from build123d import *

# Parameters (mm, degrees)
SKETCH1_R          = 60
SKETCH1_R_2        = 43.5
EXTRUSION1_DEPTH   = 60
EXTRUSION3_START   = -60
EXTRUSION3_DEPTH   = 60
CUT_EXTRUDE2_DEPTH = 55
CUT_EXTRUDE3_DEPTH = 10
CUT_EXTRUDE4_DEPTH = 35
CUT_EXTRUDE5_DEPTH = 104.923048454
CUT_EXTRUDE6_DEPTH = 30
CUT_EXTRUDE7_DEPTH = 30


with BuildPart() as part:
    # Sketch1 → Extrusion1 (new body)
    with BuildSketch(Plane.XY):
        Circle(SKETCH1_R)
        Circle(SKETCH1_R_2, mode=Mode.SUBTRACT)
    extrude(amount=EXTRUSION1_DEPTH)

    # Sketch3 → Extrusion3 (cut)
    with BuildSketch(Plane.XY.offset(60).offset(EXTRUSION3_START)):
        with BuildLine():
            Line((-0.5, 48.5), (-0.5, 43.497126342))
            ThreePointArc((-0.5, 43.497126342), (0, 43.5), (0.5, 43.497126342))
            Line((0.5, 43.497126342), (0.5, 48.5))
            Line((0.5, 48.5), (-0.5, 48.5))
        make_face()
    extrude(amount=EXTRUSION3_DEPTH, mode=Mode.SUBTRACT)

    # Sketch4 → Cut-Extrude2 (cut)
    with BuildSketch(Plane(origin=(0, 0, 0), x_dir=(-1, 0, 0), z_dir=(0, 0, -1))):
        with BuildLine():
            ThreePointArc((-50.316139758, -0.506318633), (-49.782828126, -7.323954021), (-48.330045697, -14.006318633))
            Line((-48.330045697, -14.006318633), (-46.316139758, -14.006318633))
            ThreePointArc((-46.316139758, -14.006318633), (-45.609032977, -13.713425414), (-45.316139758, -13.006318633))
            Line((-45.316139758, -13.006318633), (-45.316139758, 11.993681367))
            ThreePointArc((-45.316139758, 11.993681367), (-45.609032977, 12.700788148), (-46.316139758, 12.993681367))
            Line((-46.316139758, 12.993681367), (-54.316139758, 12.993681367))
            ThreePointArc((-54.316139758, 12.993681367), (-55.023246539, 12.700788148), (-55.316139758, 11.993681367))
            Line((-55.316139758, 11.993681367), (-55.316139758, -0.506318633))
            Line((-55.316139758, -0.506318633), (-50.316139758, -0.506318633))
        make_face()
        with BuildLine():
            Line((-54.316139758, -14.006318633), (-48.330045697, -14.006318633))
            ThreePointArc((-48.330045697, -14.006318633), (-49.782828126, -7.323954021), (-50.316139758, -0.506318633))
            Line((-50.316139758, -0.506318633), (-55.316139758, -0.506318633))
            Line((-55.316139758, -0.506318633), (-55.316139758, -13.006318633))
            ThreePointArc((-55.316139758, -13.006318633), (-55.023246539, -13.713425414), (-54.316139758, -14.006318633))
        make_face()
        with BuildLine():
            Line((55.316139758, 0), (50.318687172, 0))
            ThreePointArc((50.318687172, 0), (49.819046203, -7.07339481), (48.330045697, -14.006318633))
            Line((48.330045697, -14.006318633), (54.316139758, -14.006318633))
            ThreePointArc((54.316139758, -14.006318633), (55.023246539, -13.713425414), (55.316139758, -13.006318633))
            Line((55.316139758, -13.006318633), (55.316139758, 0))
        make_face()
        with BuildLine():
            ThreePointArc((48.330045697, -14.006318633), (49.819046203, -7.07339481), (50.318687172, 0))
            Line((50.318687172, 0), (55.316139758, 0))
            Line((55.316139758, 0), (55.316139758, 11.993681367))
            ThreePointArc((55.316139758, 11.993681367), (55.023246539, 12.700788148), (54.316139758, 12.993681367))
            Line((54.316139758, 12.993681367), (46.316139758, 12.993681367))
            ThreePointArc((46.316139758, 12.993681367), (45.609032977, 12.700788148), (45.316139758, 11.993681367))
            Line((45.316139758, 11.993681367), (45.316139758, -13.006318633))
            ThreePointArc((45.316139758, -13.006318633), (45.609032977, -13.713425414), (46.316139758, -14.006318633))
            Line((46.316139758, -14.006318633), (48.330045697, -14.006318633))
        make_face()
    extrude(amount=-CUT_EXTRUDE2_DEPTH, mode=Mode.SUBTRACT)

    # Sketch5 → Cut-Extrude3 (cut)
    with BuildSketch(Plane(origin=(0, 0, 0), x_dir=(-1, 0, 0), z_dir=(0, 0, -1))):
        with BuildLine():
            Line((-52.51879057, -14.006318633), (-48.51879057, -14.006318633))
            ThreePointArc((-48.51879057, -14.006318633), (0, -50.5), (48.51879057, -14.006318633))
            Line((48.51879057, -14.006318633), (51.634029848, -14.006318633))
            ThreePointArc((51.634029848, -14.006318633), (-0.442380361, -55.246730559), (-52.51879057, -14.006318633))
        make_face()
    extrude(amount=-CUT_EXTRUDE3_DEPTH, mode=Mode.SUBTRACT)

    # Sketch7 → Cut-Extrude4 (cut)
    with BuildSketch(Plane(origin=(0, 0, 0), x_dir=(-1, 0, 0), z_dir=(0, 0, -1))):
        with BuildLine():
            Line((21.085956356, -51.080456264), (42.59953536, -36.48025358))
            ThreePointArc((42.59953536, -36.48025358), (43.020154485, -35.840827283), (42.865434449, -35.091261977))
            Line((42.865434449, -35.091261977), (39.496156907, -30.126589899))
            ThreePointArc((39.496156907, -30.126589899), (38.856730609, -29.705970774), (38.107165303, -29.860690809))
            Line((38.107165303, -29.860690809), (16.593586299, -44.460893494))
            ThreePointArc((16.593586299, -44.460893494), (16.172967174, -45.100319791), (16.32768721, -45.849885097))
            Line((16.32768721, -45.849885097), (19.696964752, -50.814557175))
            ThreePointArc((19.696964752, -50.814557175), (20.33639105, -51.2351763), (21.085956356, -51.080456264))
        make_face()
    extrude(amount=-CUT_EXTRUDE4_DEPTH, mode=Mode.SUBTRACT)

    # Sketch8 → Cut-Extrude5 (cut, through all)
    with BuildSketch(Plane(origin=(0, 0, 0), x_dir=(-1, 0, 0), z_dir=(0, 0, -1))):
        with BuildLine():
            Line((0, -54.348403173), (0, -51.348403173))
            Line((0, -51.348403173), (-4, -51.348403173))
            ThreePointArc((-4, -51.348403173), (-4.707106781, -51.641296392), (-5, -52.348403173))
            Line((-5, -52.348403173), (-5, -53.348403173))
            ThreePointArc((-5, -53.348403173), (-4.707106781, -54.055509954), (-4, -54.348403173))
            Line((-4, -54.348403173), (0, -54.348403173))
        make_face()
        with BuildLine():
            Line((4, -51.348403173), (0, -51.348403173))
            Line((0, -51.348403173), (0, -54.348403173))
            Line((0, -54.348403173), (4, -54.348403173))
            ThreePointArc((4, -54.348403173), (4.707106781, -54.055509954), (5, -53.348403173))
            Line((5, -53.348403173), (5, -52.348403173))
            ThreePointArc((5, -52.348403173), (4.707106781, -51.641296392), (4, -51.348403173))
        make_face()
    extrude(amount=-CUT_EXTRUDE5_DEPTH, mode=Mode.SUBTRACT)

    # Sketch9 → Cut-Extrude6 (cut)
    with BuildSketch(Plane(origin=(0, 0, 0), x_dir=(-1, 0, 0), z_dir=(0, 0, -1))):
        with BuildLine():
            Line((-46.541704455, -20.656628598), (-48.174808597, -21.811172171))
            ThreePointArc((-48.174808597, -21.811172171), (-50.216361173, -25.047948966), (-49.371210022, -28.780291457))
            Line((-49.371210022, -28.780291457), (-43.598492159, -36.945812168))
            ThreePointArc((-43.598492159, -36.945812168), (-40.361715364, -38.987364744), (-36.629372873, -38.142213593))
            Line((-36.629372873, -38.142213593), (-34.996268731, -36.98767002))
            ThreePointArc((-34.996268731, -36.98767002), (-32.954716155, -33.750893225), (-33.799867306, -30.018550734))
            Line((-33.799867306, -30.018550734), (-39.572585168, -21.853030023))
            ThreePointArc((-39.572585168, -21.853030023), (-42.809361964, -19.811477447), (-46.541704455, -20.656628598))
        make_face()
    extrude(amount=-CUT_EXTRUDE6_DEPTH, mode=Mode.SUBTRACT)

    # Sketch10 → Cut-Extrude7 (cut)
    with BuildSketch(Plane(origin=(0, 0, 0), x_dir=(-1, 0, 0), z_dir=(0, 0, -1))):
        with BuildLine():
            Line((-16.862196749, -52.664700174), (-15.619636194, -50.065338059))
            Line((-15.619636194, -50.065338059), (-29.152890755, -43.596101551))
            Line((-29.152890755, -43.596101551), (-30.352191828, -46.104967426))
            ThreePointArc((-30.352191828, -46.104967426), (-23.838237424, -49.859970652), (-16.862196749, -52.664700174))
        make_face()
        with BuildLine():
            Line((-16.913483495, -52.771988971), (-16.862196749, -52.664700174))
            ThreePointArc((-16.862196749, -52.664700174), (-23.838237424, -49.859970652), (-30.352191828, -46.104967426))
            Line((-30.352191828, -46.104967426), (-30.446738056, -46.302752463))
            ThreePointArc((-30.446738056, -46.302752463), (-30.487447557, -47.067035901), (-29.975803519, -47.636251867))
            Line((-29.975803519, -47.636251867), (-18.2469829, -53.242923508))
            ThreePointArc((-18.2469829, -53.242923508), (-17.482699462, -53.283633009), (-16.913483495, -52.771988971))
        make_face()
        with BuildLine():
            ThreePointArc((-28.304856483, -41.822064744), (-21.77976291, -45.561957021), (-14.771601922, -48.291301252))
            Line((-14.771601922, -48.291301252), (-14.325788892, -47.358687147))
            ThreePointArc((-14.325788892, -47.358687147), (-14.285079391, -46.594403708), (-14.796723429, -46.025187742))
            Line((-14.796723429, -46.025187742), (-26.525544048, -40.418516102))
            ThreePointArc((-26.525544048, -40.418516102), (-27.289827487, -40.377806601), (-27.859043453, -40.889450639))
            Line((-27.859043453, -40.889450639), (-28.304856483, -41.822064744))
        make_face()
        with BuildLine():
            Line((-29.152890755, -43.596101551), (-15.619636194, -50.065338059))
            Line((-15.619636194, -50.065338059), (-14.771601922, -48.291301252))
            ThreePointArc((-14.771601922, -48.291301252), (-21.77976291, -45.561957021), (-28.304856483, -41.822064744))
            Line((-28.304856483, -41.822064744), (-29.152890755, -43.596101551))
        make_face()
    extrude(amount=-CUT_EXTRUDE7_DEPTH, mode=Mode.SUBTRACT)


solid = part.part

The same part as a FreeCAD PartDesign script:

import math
import FreeCAD as App
import Part
import Sketcher

V = App.Vector
Q = App.Units.Quantity

doc = App.newDocument("Part")
body = doc.addObject("PartDesign::Body", "Body")

# Sketch on XY plane
sketch1 = body.newObject("Sketcher::SketchObject", "Sketch")
sketch1.AttachmentSupport = (doc.getObject("XY_Plane"), [""])
sketch1.MapMode = "FlatFace"
sketch1.addGeometry([
    Part.Circle(V(0, 0, 0), V(0, 0, 1), 60),
    Part.Circle(V(0, 0, 0), V(0, 0, 1), 43.5),
], False)
sketch1.addConstraint([
    Sketcher.Constraint("Coincident", 0, 3, -1, 1),
    Sketcher.Constraint("Coincident", 1, 3, -1, 1),
    Sketcher.Constraint("Diameter", 0, Q("120 mm")),
    Sketcher.Constraint("Diameter", 1, Q("87 mm")),
])
pad1 = body.newObject("PartDesign::Pad", "Pad")
pad1.Profile = sketch1
pad1.Length = 60

# Sketch on XY plane
sketch2 = body.newObject("Sketcher::SketchObject", "Sketch001")
sketch2.AttachmentSupport = (doc.getObject("XY_Plane"), [""])
sketch2.MapMode = "FlatFace"
sketch2.addGeometry([
    Part.LineSegment(V(-0.5, 48.5, 0), V(-0.5, 43.497126, 0)),
    Part.ArcOfCircle(Part.Circle(V(0, -0.000002, 0), V(0, 0, 1), 43.500002), math.radians(89.341413), math.radians(90.658587)),
    Part.LineSegment(V(0.5, 43.497126, 0), V(0.5, 48.5, 0)),
    Part.LineSegment(V(0.5, 48.5, 0), V(-0.5, 48.5, 0)),
], False)
sketch2.addConstraint([
    Sketcher.Constraint("Coincident", 0, 2, 1, 2),
    Sketcher.Constraint("Coincident", 1, 1, 2, 1),
    Sketcher.Constraint("Coincident", 2, 2, 3, 1),
    Sketcher.Constraint("Coincident", 3, 2, 0, 1),
    Sketcher.Constraint("Vertical", 0),
    Sketcher.Constraint("Vertical", 2),
    Sketcher.Constraint("Horizontal", 3),
    Sketcher.Constraint("Coincident", 1, 3, -1, 1),
    Sketcher.Constraint("Horizontal", 0, 2, 1, 1),
    Sketcher.Constraint("DistanceX", 3, 2, 3, 1, Q("1 mm")),
    Sketcher.Constraint("DistanceY", -1, 1, 2, 2, Q("48.5 mm")),
    Sketcher.Constraint("Radius", 1, Q("43.500002 mm")),
])
pocket1 = body.newObject("PartDesign::Pocket", "Pocket")
pocket1.Profile = sketch2
pocket1.Length = 60
pocket1.Reversed = True

# Sketch on XY plane
sketch3 = body.newObject("Sketcher::SketchObject", "Sketch002")
sketch3.AttachmentSupport = (doc.getObject("XY_Plane"), [""])
sketch3.MapMode = "FlatFace"
sketch3.addGeometry([
    Part.ArcOfCircle(Part.Circle(V(46.31614, -13.006319, 0), V(0, 0, 1), 1), math.radians(-180), math.radians(-90)),  # 0
    Part.LineSegment(V(45.31614, -13.006319, 0), V(45.31614, 11.993681, 0)),  # 1
    Part.ArcOfCircle(Part.Circle(V(46.31614, 11.993681, 0), V(0, 0, 1), 1), math.radians(90), math.radians(180)),  # 2
    Part.LineSegment(V(46.31614, 12.993681, 0), V(54.31614, 12.993681, 0)),  # 3
    Part.ArcOfCircle(Part.Circle(V(54.31614, 11.993681, 0), V(0, 0, 1), 1), math.radians(0), math.radians(90)),  # 4
    Part.LineSegment(V(55.31614, 11.993681, 0), V(55.31614, -13.006319, 0)),  # 5
    Part.ArcOfCircle(Part.Circle(V(54.31614, -13.006319, 0), V(0, 0, 1), 1), math.radians(-90), math.radians(0)),  # 6
    Part.LineSegment(V(54.31614, -14.006319, 0), V(46.31614, -14.006319, 0)),  # 7
    Part.ArcOfCircle(Part.Circle(V(-54.31614, -13.006319, 0), V(0, 0, 1), 1), math.radians(-180), math.radians(-90)),  # 8
    Part.LineSegment(V(-55.31614, -13.006319, 0), V(-55.31614, 11.993681, 0)),  # 9
    Part.ArcOfCircle(Part.Circle(V(-54.31614, 11.993681, 0), V(0, 0, 1), 1), math.radians(90), math.radians(180)),  # 10
    Part.LineSegment(V(-54.31614, 12.993681, 0), V(-46.31614, 12.993681, 0)),  # 11
    Part.ArcOfCircle(Part.Circle(V(-46.31614, 11.993681, 0), V(0, 0, 1), 1), math.radians(0), math.radians(90)),  # 12
    Part.LineSegment(V(-45.31614, 11.993681, 0), V(-45.31614, -13.006319, 0)),  # 13
    Part.ArcOfCircle(Part.Circle(V(-46.31614, -13.006319, 0), V(0, 0, 1), 1), math.radians(-90), math.radians(0)),  # 14
    Part.LineSegment(V(-46.31614, -14.006319, 0), V(-54.31614, -14.006319, 0)),  # 15
], False)
sketch3.addConstraint([
    Sketcher.Constraint("Tangent", 0, 1, 1, 1),
    Sketcher.Constraint("Tangent", 1, 2, 2, 2),
    Sketcher.Constraint("Tangent", 2, 1, 3, 1),
    Sketcher.Constraint("Tangent", 3, 2, 4, 2),
    Sketcher.Constraint("Tangent", 4, 1, 5, 1),
    Sketcher.Constraint("Tangent", 5, 2, 6, 2),
    Sketcher.Constraint("Tangent", 6, 1, 7, 1),
    Sketcher.Constraint("Tangent", 7, 2, 0, 2),
    Sketcher.Constraint("Tangent", 8, 1, 9, 1),
    Sketcher.Constraint("Tangent", 9, 2, 10, 2),
    Sketcher.Constraint("Tangent", 10, 1, 11, 1),
    Sketcher.Constraint("Tangent", 11, 2, 12, 2),
    Sketcher.Constraint("Tangent", 12, 1, 13, 1),
    Sketcher.Constraint("Tangent", 13, 2, 14, 2),
    Sketcher.Constraint("Tangent", 14, 1, 15, 1),
    Sketcher.Constraint("Tangent", 15, 2, 8, 2),
    Sketcher.Constraint("Vertical", 1),
    Sketcher.Constraint("Horizontal", 3),
    Sketcher.Constraint("Vertical", 5),
    Sketcher.Constraint("Horizontal", 7),
    Sketcher.Constraint("Vertical", 9),
    Sketcher.Constraint("Horizontal", 11),
    Sketcher.Constraint("Vertical", 13),
    Sketcher.Constraint("Horizontal", 15),
    Sketcher.Constraint("Equal", 0, 2),
    Sketcher.Constraint("Equal", 2, 4),
    Sketcher.Constraint("Equal", 4, 6),
    Sketcher.Constraint("Equal", 6, 8),
    Sketcher.Constraint("Equal", 8, 10),
    Sketcher.Constraint("Equal", 10, 12),
    Sketcher.Constraint("Equal", 12, 14),
    Sketcher.Constraint("Symmetric", 6, 3, 8, 3, -2),
    Sketcher.Constraint("Symmetric", 2, 3, 12, 3, -2),
    Sketcher.Constraint("Radius", 0, Q("1 mm")),
    Sketcher.Constraint("DistanceX", 3, 1, 3, 2, Q("8 mm")),
    Sketcher.Constraint("DistanceY", 1, 1, 1, 2, Q("25 mm")),
    Sketcher.Constraint("DistanceX", -1, 1, 0, 3, Q("46.31614 mm")),
    Sketcher.Constraint("DistanceY", 0, 3, -1, 1, Q("13.006319 mm")),
])
pocket2 = body.newObject("PartDesign::Pocket", "Pocket001")
pocket2.Profile = sketch3
pocket2.Length = 55
pocket2.Reversed = True

# Sketch on XY plane
sketch4 = body.newObject("Sketcher::SketchObject", "Sketch003")
sketch4.AttachmentSupport = (doc.getObject("XY_Plane"), [""])
sketch4.MapMode = "FlatFace"
sketch4.addGeometry([
    Part.LineSegment(V(48.518791, -14.006319, 0), V(52.518791, -14.006319, 0)),
    Part.ArcOfCircle(Part.Circle(V(0.44238, -1.746731, 0), V(0, 0, 1), 53.5), math.radians(-166.752897), math.radians(-13.247103)),
    Part.LineSegment(V(-51.63403, -14.006319, 0), V(-48.518791, -14.006319, 0)),
    Part.ArcOfCircle(Part.Circle(V(0, 0, 0), V(0, 0, 1), 50.5), math.radians(-163.897722), math.radians(-16.102278)),
], False)
sketch4.addConstraint([
    Sketcher.Constraint("Coincident", 0, 2, 1, 2),
    Sketcher.Constraint("Coincident", 1, 1, 2, 1),
    Sketcher.Constraint("Coincident", 2, 2, 3, 1),
    Sketcher.Constraint("Coincident", 3, 2, 0, 1),
    Sketcher.Constraint("Horizontal", 0),
    Sketcher.Constraint("Horizontal", 2),
    Sketcher.Constraint("Coincident", 3, 3, -1, 1),
    Sketcher.Constraint("Horizontal", 0, 2, 1, 1),
    Sketcher.Constraint("Radius", 1, Q("53.5 mm")),
    Sketcher.Constraint("Radius", 3, Q("50.5 mm")),
    Sketcher.Constraint("DistanceX", 0, 1, 0, 2, Q("4 mm")),
    Sketcher.Constraint("DistanceX", 2, 1, 2, 2, Q("3.115239 mm")),
    Sketcher.Constraint("DistanceY", 1, 3, -1, 1, Q("1.746731 mm")),
])
pocket3 = body.newObject("PartDesign::Pocket", "Pocket002")
pocket3.Profile = sketch4
pocket3.Length = 10
pocket3.Reversed = True

# Sketch on XY plane
sketch5 = body.newObject("Sketcher::SketchObject", "Sketch004")
sketch5.AttachmentSupport = (doc.getObject("XY_Plane"), [""])
sketch5.MapMode = "FlatFace"
sketch5.addGeometry([
    Part.LineSegment(V(-21.085956, -51.080456, 0), V(-42.599535, -36.480254, 0)),  # 0
    Part.ArcOfCircle(Part.Circle(V(-42.037989, -35.652808, 0), V(0, 0, 1), 1), math.radians(145.837201), math.radians(235.837201)),  # 1
    Part.LineSegment(V(-42.865434, -35.091262, 0), V(-39.496157, -30.12659, 0)),  # 2
    Part.ArcOfCircle(Part.Circle(V(-38.668712, -30.688136, 0), V(0, 0, 1), 1), math.radians(55.837201), math.radians(145.837201)),  # 3
    Part.LineSegment(V(-38.107165, -29.860691, 0), V(-16.593586, -44.460893, 0)),  # 4
    Part.ArcOfCircle(Part.Circle(V(-17.155133, -45.288339, 0), V(0, 0, 1), 1), math.radians(-34.162799), math.radians(55.837201)),  # 5
    Part.LineSegment(V(-16.327687, -45.849885, 0), V(-19.696965, -50.814557, 0)),  # 6
    Part.ArcOfCircle(Part.Circle(V(-20.52441, -50.253011, 0), V(0, 0, 1), 1), math.radians(-124.162799), math.radians(-34.162799)),  # 7
], False)
sketch5.addConstraint([
    Sketcher.Constraint("Tangent", 0, 2, 1, 2),
    Sketcher.Constraint("Tangent", 1, 1, 2, 1),
    Sketcher.Constraint("Tangent", 2, 2, 3, 2),
    Sketcher.Constraint("Tangent", 3, 1, 4, 1),
    Sketcher.Constraint("Tangent", 4, 2, 5, 2),
    Sketcher.Constraint("Tangent", 5, 1, 6, 1),
    Sketcher.Constraint("Tangent", 6, 2, 7, 2),
    Sketcher.Constraint("Tangent", 7, 1, 0, 1),
    Sketcher.Constraint("Equal", 1, 3),
    Sketcher.Constraint("Equal", 3, 5),
    Sketcher.Constraint("Equal", 5, 7),
    Sketcher.Constraint("Perpendicular", 0, 2),
    Sketcher.Constraint("Perpendicular", 2, 4),
    Sketcher.Constraint("Perpendicular", 4, 6),
    Sketcher.Constraint("Radius", 1, Q("1 mm")),
    Sketcher.Constraint("Distance", 0, Q("26 mm")),
    Sketcher.Constraint("Distance", 2, Q("6 mm")),
    Sketcher.Constraint("DistanceX", 3, 3, 7, 3, Q("18.144301 mm")),
    Sketcher.Constraint("DistanceX", 1, 3, -1, 1, Q("42.037989 mm")),
    Sketcher.Constraint("DistanceY", 1, 3, -1, 1, Q("35.652808 mm")),
])
pocket4 = body.newObject("PartDesign::Pocket", "Pocket003")
pocket4.Profile = sketch5
pocket4.Length = 35
pocket4.Reversed = True

# Sketch on XY plane
sketch6 = body.newObject("Sketcher::SketchObject", "Sketch005")
sketch6.AttachmentSupport = (doc.getObject("XY_Plane"), [""])
sketch6.MapMode = "FlatFace"
sketch6.addGeometry([
    Part.ArcOfCircle(Part.Circle(V(4, -52.348403, 0), V(0, 0, 1), 1), math.radians(0), math.radians(90)),  # 0
    Part.LineSegment(V(5, -52.348403, 0), V(5, -53.348403, 0)),  # 1
    Part.ArcOfCircle(Part.Circle(V(4, -53.348403, 0), V(0, 0, 1), 1), math.radians(-90), math.radians(0)),  # 2
    Part.LineSegment(V(4, -54.348403, 0), V(-4, -54.348403, 0)),  # 3
    Part.ArcOfCircle(Part.Circle(V(-4, -53.348403, 0), V(0, 0, 1), 1), math.radians(-180), math.radians(-90)),  # 4
    Part.LineSegment(V(-5, -53.348403, 0), V(-5, -52.348403, 0)),  # 5
    Part.ArcOfCircle(Part.Circle(V(-4, -52.348403, 0), V(0, 0, 1), 1), math.radians(90), math.radians(180)),  # 6
    Part.LineSegment(V(-4, -51.348403, 0), V(4, -51.348403, 0)),  # 7
], False)
sketch6.addConstraint([
    Sketcher.Constraint("Tangent", 0, 1, 1, 1),
    Sketcher.Constraint("Tangent", 1, 2, 2, 2),
    Sketcher.Constraint("Tangent", 2, 1, 3, 1),
    Sketcher.Constraint("Tangent", 3, 2, 4, 2),
    Sketcher.Constraint("Tangent", 4, 1, 5, 1),
    Sketcher.Constraint("Tangent", 5, 2, 6, 2),
    Sketcher.Constraint("Tangent", 6, 1, 7, 1),
    Sketcher.Constraint("Tangent", 7, 2, 0, 2),
    Sketcher.Constraint("Vertical", 1),
    Sketcher.Constraint("Horizontal", 3),
    Sketcher.Constraint("Vertical", 5),
    Sketcher.Constraint("Horizontal", 7),
    Sketcher.Constraint("Equal", 0, 2),
    Sketcher.Constraint("Equal", 2, 4),
    Sketcher.Constraint("Equal", 4, 6),
    Sketcher.Constraint("Radius", 0, Q("1 mm")),
    Sketcher.Constraint("DistanceX", 3, 2, 3, 1, Q("8 mm")),
    Sketcher.Constraint("DistanceY", 1, 2, 1, 1, Q("1 mm")),
    Sketcher.Constraint("DistanceX", -1, 1, 0, 3, Q("4 mm")),
    Sketcher.Constraint("DistanceY", 0, 3, -1, 1, Q("52.348403 mm")),
])
pocket5 = body.newObject("PartDesign::Pocket", "Pocket004")
pocket5.Profile = sketch6
pocket5.Type = "ThroughAll"
pocket5.Reversed = True

# Sketch on XY plane
sketch7 = body.newObject("Sketcher::SketchObject", "Sketch006")
sketch7.AttachmentSupport = (doc.getObject("XY_Plane"), [""])
sketch7.MapMode = "FlatFace"
sketch7.addGeometry([
    Part.LineSegment(V(46.541704, -20.656629, 0), V(48.174809, -21.811172, 0)),  # 0
    Part.ArcOfCircle(Part.Circle(V(45.28845, -25.893933, 0), V(0, 0, 1), 5), math.radians(-35.258883), math.radians(54.741118)),  # 1
    Part.LineSegment(V(49.37121, -28.780291, 0), V(43.598492, -36.945812, 0)),  # 2
    Part.ArcOfCircle(Part.Circle(V(39.515732, -34.059453, 0), V(0, 0, 1), 5), math.radians(-125.258883), math.radians(-35.258882)),  # 3
    Part.LineSegment(V(36.629373, -38.142214, 0), V(34.996269, -36.98767, 0)),  # 4
    Part.ArcOfCircle(Part.Circle(V(37.882628, -32.90491, 0), V(0, 0, 1), 5), math.radians(144.741117), math.radians(234.741118)),  # 5
    Part.LineSegment(V(33.799867, -30.018551, 0), V(39.572585, -21.85303, 0)),  # 6
    Part.ArcOfCircle(Part.Circle(V(43.655346, -24.739389, 0), V(0, 0, 1), 5), math.radians(54.741117), math.radians(144.741118)),  # 7
], False)
sketch7.addConstraint([
    Sketcher.Constraint("Tangent", 0, 2, 1, 2),
    Sketcher.Constraint("Tangent", 1, 1, 2, 1),
    Sketcher.Constraint("Tangent", 2, 2, 3, 2),
    Sketcher.Constraint("Tangent", 3, 1, 4, 1),
    Sketcher.Constraint("Tangent", 4, 2, 5, 2),
    Sketcher.Constraint("Tangent", 5, 1, 6, 1),
    Sketcher.Constraint("Tangent", 6, 2, 7, 2),
    Sketcher.Constraint("Tangent", 7, 1, 0, 1),
    Sketcher.Constraint("Equal", 1, 3),
    Sketcher.Constraint("Equal", 3, 5),
    Sketcher.Constraint("Equal", 5, 7),
    Sketcher.Constraint("Perpendicular", 0, 2),
    Sketcher.Constraint("Perpendicular", 2, 4),
    Sketcher.Constraint("Perpendicular", 4, 6),
    Sketcher.Constraint("Radius", 1, Q("5 mm")),
    Sketcher.Constraint("Distance", 0, Q("2 mm")),
    Sketcher.Constraint("Distance", 2, Q("10 mm")),
    Sketcher.Constraint("DistanceX", 0, 2, 1, 1, Q("1.196401 mm")),
    Sketcher.Constraint("DistanceX", -1, 1, 1, 3, Q("45.28845 mm")),
    Sketcher.Constraint("DistanceY", 5, 3, -1, 1, Q("32.90491 mm")),
])
pocket6 = body.newObject("PartDesign::Pocket", "Pocket005")
pocket6.Profile = sketch7
pocket6.Length = 30
pocket6.Reversed = True

# Sketch on XY plane
sketch8 = body.newObject("Sketcher::SketchObject", "Sketch007")
sketch8.AttachmentSupport = (doc.getObject("XY_Plane"), [""])
sketch8.MapMode = "FlatFace"
sketch8.addGeometry([
    Part.LineSegment(V(16.862197, -52.6647, 0), V(15.619636, -50.065338, 0)),  # 0
    Part.LineSegment(V(15.619636, -50.065338, 0), V(14.771602, -48.291301, 0)),  # 1
    Part.LineSegment(V(14.771602, -48.291301, 0), V(14.325789, -47.358687, 0)),  # 2
    Part.ArcOfCircle(Part.Circle(V(15.228006, -46.927405, 0), V(0, 0, 1), 1), math.radians(115.548974), math.radians(205.548974)),  # 3
    Part.LineSegment(V(14.796723, -46.025188, 0), V(26.525544, -40.418516, 0)),  # 4
    Part.ArcOfCircle(Part.Circle(V(26.956826, -41.320733, 0), V(0, 0, 1), 1), math.radians(25.548974), math.radians(115.548974)),  # 5
    Part.LineSegment(V(27.859043, -40.889451, 0), V(28.304856, -41.822065, 0)),  # 6
    Part.LineSegment(V(28.304856, -41.822065, 0), V(29.152891, -43.596102, 0)),  # 7
    Part.LineSegment(V(29.152891, -43.596102, 0), V(30.352192, -46.104967, 0)),  # 8
    Part.LineSegment(V(30.352192, -46.104967, 0), V(30.446738, -46.302752, 0)),  # 9
    Part.ArcOfCircle(Part.Circle(V(29.544521, -46.734035, 0), V(0, 0, 1), 1), math.radians(-64.451026), math.radians(25.548974)),  # 10
    Part.LineSegment(V(29.975804, -47.636252, 0), V(18.246983, -53.242924, 0)),  # 11
    Part.ArcOfCircle(Part.Circle(V(17.8157, -52.340707, 0), V(0, 0, 1), 1), math.radians(-154.451026), math.radians(-64.451026)),  # 12
    Part.LineSegment(V(16.913483, -52.771989, 0), V(16.862197, -52.6647, 0)),  # 13
], False)
sketch8.addConstraint([
    Sketcher.Constraint("Coincident", 0, 2, 1, 1),
    Sketcher.Constraint("Coincident", 1, 2, 2, 1),
    Sketcher.Constraint("Coincident", 2, 2, 3, 2),
    Sketcher.Constraint("Coincident", 3, 1, 4, 1),
    Sketcher.Constraint("Coincident", 4, 2, 5, 2),
    Sketcher.Constraint("Coincident", 5, 1, 6, 1),
    Sketcher.Constraint("Coincident", 6, 2, 7, 1),
    Sketcher.Constraint("Coincident", 7, 2, 8, 1),
    Sketcher.Constraint("Coincident", 8, 2, 9, 1),
    Sketcher.Constraint("Coincident", 9, 2, 10, 2),
    Sketcher.Constraint("Coincident", 10, 1, 11, 1),
    Sketcher.Constraint("Coincident", 11, 2, 12, 2),
    Sketcher.Constraint("Coincident", 12, 1, 13, 1),
    Sketcher.Constraint("Coincident", 13, 2, 0, 1),
    Sketcher.Constraint("Radius", 3, Q("1 mm")),
    Sketcher.Constraint("Radius", 5, Q("1 mm")),
    Sketcher.Constraint("Radius", 10, Q("1 mm")),
    Sketcher.Constraint("Radius", 12, Q("1 mm")),
    Sketcher.Constraint("Distance", 4, Q("13 mm")),
    Sketcher.Constraint("Distance", 11, Q("13 mm")),
    Sketcher.Constraint("DistanceX", -1, 1, 12, 3, Q("17.8157 mm")),
    Sketcher.Constraint("DistanceX", -1, 1, 1, 2, Q("14.771602 mm")),
    Sketcher.Constraint("DistanceY", 1, 2, -1, 1, Q("48.291301 mm")),
    Sketcher.Constraint("DistanceY", 7, 2, -1, 1, Q("43.596102 mm")),
    Sketcher.Constraint("DistanceY", 13, 2, -1, 1, Q("52.6647 mm")),
    Sketcher.Constraint("DistanceY", 10, 3, 5, 3, Q("5.413302 mm")),
    Sketcher.Constraint("DistanceY", 12, 3, 3, 3, Q("5.413302 mm")),
    Sketcher.Constraint("DistanceY", 2, 2, 3, 1, Q("1.333499 mm")),
    Sketcher.Constraint("DistanceX", 4, 2, 5, 1, Q("1.333499 mm")),
    Sketcher.Constraint("DistanceX", 7, 2, 8, 2, Q("1.199301 mm")),
    Sketcher.Constraint("DistanceY", 9, 2, 5, 1, Q("5.413302 mm")),
    Sketcher.Constraint("DistanceY", 10, 1, 9, 2, Q("1.333499 mm")),
    Sketcher.Constraint("DistanceX", 12, 1, 11, 2, Q("1.333499 mm")),
    Sketcher.Constraint("DistanceY", 12, 1, 2, 2, Q("5.413302 mm")),
    Sketcher.Constraint("Distance", 1, Q("1.966308 mm")),
    Sketcher.Constraint("Distance", 2, Q("1.033692 mm")),
    Sketcher.Constraint("Distance", 6, Q("1.033692 mm")),
    Sketcher.Constraint("Distance", 7, Q("1.966308 mm")),
    Sketcher.Constraint("Distance", 8, Q("2.780779 mm")),
    Sketcher.Constraint("Distance", 9, Q("0.219221 mm")),
    Sketcher.Constraint("DistanceX", -1, 1, 10, 3, Q("29.544521 mm")),
    Sketcher.Constraint("DistanceY", 0, 2, -1, 1, Q("50.065338 mm")),
    Sketcher.Constraint("DistanceX", -1, 1, 2, 2, Q("14.325789 mm")),
    Sketcher.Constraint("DistanceY", 5, 1, -1, 1, Q("40.889451 mm")),
    Sketcher.Constraint("DistanceX", 5, 3, 6, 2, Q("1.34803 mm")),
    Sketcher.Constraint("DistanceX", 0, 2, 13, 2, Q("1.242561 mm")),
])
pocket7 = body.newObject("PartDesign::Pocket", "Pocket006")
pocket7.Profile = sketch8
pocket7.Length = 30
pocket7.Reversed = True

doc.recompute()
